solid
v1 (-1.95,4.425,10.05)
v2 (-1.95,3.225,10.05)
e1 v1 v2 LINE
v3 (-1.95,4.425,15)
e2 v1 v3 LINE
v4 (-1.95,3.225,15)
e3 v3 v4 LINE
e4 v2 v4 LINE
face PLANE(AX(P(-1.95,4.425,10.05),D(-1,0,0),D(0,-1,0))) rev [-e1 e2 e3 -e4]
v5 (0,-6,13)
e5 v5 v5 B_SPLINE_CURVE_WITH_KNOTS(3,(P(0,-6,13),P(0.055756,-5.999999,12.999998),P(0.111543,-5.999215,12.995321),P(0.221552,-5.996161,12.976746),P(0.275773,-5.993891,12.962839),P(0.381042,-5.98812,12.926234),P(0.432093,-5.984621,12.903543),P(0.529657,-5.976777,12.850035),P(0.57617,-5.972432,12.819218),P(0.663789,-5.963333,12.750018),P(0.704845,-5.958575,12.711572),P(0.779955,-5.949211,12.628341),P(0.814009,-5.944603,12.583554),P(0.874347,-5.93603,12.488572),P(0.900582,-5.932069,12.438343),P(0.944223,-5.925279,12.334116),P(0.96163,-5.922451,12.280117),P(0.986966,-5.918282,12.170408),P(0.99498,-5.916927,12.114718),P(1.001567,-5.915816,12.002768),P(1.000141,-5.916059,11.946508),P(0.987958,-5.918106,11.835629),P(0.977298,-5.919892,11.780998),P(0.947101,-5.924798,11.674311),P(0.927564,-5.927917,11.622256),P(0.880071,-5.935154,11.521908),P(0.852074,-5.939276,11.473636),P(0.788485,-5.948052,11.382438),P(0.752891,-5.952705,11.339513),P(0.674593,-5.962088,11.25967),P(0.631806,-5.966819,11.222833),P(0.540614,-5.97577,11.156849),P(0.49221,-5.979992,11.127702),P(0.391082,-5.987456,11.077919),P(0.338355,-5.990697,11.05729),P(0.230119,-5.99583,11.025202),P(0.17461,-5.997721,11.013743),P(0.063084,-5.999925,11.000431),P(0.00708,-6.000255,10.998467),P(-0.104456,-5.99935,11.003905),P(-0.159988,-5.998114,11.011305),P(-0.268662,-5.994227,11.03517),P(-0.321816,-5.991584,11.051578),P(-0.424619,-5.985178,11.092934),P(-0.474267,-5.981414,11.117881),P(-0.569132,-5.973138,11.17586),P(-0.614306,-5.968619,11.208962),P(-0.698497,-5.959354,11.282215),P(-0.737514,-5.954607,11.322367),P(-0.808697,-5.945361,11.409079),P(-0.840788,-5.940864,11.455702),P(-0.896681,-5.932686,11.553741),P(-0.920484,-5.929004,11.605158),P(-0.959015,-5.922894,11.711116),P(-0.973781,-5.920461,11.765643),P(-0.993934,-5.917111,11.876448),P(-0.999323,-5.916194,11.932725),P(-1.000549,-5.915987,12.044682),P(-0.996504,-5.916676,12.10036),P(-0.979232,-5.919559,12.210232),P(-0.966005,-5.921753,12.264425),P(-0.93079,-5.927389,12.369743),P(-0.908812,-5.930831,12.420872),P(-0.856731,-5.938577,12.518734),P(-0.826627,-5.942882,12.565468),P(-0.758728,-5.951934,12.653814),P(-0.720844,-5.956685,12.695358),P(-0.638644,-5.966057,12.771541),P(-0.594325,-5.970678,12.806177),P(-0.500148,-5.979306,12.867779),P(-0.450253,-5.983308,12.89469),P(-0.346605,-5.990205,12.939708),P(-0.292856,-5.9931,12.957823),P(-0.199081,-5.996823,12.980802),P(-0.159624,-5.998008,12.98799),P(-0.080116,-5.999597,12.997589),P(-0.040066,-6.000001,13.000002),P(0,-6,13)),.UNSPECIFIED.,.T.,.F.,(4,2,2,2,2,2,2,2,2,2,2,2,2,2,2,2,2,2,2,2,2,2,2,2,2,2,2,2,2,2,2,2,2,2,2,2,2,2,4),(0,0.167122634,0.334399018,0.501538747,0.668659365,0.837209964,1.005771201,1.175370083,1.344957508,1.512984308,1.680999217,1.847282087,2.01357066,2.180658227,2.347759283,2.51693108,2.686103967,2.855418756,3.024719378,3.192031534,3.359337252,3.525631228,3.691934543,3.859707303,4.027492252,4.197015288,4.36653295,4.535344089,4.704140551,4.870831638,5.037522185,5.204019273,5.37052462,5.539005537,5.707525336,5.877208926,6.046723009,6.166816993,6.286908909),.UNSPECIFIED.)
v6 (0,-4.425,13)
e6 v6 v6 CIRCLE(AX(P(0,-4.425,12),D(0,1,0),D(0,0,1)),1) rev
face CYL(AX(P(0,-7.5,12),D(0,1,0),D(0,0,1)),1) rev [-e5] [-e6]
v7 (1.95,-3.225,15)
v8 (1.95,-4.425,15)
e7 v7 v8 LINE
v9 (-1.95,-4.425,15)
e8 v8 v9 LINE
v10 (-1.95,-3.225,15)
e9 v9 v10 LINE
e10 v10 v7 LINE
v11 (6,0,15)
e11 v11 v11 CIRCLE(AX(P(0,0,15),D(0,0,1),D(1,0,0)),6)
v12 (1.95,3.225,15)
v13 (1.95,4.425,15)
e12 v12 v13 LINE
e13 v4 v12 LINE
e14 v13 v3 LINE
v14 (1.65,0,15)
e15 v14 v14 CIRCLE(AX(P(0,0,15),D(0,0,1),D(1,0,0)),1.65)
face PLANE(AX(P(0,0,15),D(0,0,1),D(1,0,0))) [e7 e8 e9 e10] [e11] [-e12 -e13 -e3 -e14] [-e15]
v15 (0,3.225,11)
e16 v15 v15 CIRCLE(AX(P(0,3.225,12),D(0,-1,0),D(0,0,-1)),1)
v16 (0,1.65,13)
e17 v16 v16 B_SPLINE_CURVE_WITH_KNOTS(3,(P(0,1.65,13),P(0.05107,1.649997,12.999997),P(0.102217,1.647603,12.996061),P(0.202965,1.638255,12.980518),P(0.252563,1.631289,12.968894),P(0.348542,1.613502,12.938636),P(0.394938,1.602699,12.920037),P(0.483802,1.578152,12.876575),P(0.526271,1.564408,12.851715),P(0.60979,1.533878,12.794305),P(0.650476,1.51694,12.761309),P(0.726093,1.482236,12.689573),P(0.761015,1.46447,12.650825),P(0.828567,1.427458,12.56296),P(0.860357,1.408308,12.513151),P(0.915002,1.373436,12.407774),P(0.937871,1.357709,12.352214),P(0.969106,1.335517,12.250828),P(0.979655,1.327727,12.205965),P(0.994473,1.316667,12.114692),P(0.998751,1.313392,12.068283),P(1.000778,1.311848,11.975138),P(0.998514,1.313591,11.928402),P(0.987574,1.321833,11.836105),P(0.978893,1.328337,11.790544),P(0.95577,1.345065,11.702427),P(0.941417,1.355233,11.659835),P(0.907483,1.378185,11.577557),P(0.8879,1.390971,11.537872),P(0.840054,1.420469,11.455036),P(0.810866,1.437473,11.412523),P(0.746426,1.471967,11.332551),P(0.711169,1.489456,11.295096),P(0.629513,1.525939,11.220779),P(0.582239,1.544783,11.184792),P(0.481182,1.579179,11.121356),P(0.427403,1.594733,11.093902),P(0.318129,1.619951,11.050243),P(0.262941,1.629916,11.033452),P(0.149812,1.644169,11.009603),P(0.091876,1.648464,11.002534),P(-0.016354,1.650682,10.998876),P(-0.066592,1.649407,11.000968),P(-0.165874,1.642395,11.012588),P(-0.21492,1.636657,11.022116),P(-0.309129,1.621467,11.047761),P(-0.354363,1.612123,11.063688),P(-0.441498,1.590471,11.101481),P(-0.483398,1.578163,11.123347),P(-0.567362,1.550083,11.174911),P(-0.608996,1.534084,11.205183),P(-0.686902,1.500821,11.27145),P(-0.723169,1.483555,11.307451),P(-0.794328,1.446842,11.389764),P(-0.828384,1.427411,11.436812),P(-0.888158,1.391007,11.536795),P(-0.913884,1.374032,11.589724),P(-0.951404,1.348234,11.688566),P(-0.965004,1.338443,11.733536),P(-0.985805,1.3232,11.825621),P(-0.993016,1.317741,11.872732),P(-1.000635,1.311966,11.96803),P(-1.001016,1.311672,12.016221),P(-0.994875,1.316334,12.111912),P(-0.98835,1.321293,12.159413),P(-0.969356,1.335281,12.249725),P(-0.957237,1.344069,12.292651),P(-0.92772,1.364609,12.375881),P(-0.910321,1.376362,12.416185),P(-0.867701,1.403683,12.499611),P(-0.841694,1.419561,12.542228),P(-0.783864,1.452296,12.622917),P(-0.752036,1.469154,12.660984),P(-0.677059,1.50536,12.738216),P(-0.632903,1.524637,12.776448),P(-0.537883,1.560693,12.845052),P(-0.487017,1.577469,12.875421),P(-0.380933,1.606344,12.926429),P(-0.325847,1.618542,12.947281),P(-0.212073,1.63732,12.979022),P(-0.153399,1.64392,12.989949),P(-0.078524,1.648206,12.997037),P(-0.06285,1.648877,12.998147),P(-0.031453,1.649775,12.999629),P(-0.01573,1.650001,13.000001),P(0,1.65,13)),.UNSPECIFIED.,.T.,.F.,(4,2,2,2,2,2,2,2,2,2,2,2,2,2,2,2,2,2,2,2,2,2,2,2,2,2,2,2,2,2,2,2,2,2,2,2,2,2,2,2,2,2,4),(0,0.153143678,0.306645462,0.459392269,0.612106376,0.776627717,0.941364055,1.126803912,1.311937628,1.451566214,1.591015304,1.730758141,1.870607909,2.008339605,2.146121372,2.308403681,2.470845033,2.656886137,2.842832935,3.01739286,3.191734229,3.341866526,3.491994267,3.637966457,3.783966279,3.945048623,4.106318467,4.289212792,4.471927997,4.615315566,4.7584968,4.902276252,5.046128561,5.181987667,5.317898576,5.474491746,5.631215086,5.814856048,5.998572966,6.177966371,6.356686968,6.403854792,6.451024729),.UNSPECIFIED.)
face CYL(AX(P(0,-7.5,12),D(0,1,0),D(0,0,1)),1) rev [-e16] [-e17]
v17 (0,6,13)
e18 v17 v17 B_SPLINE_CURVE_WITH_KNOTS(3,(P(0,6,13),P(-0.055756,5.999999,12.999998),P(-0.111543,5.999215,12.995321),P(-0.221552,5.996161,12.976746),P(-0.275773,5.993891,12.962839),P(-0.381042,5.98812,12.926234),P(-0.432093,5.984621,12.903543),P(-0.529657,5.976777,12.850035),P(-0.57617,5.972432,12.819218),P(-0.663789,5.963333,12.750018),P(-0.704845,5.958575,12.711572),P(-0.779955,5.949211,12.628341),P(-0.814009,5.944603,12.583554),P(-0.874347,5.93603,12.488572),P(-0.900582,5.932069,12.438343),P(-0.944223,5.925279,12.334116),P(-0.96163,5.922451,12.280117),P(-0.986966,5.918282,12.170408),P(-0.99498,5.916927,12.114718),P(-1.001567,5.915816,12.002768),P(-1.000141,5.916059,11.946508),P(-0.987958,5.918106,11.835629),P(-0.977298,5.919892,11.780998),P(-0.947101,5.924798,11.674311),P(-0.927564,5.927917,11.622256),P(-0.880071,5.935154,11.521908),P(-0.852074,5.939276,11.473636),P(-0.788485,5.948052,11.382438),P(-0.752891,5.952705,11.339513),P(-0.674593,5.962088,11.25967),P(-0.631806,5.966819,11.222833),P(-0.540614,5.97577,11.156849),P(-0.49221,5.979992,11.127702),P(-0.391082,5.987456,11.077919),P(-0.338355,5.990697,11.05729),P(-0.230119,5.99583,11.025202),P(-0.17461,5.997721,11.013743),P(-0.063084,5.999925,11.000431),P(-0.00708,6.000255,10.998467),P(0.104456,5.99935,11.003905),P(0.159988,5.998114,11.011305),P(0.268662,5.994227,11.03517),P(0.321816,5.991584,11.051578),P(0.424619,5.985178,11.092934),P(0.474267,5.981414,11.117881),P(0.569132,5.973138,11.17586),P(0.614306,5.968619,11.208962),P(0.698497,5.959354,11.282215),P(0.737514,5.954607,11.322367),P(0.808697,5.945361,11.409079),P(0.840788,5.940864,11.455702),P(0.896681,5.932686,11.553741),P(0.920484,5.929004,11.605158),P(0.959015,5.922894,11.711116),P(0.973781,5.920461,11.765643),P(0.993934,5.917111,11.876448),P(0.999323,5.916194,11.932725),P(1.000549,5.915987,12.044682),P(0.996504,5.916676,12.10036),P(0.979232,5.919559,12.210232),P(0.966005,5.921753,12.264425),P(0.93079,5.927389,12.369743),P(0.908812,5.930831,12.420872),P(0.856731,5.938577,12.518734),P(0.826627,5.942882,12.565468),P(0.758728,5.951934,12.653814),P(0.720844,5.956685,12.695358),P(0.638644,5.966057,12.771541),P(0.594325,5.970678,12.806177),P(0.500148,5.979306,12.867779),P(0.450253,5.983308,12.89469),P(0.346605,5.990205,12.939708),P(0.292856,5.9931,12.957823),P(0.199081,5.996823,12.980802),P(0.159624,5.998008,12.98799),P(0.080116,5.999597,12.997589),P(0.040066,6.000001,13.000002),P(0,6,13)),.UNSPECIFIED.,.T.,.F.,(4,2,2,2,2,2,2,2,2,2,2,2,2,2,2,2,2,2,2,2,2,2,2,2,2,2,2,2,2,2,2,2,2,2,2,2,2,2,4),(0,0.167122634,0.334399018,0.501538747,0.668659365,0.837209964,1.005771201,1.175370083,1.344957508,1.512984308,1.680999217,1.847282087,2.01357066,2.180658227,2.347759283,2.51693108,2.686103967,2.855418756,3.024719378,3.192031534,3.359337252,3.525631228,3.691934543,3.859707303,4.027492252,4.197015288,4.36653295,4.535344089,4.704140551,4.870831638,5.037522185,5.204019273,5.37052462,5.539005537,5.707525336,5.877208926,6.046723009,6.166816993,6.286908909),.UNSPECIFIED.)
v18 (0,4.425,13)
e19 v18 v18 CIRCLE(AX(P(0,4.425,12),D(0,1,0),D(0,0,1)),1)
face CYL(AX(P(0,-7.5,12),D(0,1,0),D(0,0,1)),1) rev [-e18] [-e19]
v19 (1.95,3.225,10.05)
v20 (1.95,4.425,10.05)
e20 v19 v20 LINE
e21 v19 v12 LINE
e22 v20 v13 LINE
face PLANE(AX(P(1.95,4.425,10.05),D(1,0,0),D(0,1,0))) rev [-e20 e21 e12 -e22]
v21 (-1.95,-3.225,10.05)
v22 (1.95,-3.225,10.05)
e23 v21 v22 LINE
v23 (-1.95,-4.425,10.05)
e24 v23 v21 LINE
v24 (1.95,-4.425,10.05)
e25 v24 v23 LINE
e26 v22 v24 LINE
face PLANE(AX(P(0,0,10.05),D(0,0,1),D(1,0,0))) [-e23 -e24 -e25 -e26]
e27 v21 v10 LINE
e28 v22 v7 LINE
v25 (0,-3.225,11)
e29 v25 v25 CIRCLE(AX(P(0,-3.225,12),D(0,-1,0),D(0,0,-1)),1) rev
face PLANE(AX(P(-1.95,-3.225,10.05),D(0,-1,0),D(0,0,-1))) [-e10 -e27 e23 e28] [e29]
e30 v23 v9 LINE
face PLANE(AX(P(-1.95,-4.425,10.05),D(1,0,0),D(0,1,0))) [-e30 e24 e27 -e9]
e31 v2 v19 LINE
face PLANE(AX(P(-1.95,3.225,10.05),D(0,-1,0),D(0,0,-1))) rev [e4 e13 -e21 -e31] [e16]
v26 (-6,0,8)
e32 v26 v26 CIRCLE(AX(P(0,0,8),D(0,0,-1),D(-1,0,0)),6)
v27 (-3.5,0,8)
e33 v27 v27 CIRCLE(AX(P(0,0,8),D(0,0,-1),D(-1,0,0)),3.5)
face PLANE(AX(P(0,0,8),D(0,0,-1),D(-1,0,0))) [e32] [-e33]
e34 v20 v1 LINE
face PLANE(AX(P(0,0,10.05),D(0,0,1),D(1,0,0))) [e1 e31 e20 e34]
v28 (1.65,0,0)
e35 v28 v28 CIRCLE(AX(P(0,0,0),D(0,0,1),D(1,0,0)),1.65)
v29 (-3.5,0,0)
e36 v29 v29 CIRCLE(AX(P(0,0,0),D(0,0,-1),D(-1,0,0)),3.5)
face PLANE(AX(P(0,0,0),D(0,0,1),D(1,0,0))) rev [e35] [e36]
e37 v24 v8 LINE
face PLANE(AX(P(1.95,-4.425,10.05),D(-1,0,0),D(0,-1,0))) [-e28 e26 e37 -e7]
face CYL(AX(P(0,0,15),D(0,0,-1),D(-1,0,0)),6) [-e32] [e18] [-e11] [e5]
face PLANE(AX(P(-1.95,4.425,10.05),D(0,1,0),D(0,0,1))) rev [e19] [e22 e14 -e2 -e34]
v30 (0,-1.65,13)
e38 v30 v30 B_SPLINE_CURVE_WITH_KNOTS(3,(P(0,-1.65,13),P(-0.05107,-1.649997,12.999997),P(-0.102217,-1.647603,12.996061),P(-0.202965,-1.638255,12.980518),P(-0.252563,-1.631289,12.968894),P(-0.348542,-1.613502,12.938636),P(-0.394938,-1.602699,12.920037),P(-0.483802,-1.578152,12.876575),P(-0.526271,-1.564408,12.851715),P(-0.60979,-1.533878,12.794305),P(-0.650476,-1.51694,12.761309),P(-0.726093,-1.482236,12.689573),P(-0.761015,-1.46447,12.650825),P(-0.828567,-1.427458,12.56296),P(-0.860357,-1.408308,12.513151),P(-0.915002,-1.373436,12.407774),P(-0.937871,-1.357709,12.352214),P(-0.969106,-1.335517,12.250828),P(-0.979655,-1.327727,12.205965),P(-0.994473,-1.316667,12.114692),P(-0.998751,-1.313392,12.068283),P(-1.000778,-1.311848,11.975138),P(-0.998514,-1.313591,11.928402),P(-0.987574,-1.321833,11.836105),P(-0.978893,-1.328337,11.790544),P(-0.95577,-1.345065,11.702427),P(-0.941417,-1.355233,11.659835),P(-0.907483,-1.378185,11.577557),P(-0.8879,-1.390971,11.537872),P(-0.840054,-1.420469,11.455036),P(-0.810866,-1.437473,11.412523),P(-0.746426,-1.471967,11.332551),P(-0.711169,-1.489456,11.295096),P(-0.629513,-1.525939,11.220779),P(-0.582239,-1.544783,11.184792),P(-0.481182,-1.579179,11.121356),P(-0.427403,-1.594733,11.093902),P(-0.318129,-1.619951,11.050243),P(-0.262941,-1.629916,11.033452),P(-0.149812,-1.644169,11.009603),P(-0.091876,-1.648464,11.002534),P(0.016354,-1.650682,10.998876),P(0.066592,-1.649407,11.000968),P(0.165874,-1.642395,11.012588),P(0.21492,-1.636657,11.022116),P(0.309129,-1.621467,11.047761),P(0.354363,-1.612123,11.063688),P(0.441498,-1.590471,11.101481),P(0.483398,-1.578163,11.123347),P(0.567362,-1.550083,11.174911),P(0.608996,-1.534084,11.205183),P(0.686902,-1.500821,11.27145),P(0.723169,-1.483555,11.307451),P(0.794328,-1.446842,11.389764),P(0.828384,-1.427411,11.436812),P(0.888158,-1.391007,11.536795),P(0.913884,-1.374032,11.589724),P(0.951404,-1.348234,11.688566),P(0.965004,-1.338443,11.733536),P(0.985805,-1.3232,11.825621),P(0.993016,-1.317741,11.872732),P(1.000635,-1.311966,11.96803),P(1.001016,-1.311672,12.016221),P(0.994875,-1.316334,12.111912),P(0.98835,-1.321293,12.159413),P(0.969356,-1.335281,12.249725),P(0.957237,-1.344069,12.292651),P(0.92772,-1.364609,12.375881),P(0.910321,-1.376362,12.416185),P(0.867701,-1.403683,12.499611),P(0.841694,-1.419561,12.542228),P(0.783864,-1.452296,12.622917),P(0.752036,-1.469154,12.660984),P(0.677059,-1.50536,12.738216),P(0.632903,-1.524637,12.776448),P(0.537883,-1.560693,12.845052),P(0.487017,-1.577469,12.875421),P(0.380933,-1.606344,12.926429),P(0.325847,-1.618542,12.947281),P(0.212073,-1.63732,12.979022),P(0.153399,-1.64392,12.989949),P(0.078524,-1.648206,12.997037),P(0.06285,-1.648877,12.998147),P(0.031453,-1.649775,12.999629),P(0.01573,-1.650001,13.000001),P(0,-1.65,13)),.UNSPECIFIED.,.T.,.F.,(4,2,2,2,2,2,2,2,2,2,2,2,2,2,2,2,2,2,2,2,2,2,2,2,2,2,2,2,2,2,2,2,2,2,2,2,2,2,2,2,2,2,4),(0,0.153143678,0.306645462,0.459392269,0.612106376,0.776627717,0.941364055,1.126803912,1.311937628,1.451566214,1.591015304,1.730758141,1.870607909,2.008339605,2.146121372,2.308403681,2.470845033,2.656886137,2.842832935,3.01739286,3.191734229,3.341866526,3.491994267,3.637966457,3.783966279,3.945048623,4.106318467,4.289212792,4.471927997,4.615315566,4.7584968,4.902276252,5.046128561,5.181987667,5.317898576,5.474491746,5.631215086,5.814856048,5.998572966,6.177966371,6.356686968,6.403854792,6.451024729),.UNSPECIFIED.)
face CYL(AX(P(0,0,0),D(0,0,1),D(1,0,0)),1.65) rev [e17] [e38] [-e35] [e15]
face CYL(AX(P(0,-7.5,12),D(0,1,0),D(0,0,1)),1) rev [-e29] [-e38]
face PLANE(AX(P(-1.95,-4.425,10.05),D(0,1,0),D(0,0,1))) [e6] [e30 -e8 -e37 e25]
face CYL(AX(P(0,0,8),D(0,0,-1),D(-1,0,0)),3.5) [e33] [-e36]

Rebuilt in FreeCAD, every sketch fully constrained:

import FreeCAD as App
import Part
import Sketcher

doc = App.newDocument("Part")
body = doc.addObject("PartDesign::Body", "Body")

sketch1 = body.newObject("Sketcher::SketchObject", "Sketch")
sketch1.AttachmentSupport = (doc.getObject("XY_Plane"), [""])
sketch1.MapMode = "FlatFace"
sketch1.addGeometry(Part.Circle(App.Vector(0, 0, 0), App.Vector(0, 0, 1), 6), False)
sketch1.addConstraint([
    Sketcher.Constraint("Coincident", 0, 3, -1, 1),
    Sketcher.Constraint("Diameter", 0, 12.0),
])
pad1 = body.newObject("PartDesign::Pad", "Pad")
pad1.Profile = sketch1
pad1.Length = 15

sketch2 = body.newObject("Sketcher::SketchObject", "Sketch001")
sketch2.AttachmentSupport = (doc.getObject("XY_Plane"), [""])
sketch2.MapMode = "FlatFace"
sketch2.AttachmentOffset = App.Placement(App.Vector(0, 0, 15), App.Rotation())
sketch2.addGeometry(Part.Circle(App.Vector(0, 0, 0), App.Vector(0, 0, 1), 1.6), False)
sketch2.addConstraint([
    Sketcher.Constraint("Coincident", 0, 3, -1, 1),
    Sketcher.Constraint("Diameter", 0, 3.3),
])
pocket1 = body.newObject("PartDesign::Pocket", "Pocket")
pocket1.Profile = sketch2
pocket1.Type = "ThroughAll"

sketch3 = body.newObject("Sketcher::SketchObject", "Sketch002")
sketch3.AttachmentSupport = (doc.getObject("XY_Plane"), [""])
sketch3.MapMode = "FlatFace"
sketch3.AttachmentOffset = App.Placement(App.Vector(0, 0, 15), App.Rotation())
sketch3.addGeometry([
    Part.LineSegment(App.Vector(-1.9, 4.4, 0), App.Vector(-1.9, 3.2, 0)),
    Part.LineSegment(App.Vector(-1.9, 3.2, 0), App.Vector(1.9, 3.2, 0)),
    Part.LineSegment(App.Vector(1.9, 3.2, 0), App.Vector(1.9, 4.4, 0)),
    Part.LineSegment(App.Vector(1.9, 4.4, 0), App.Vector(-1.9, 4.4, 0)),
], False)
sketch3.addConstraint([
    Sketcher.Constraint("Coincident", 0, 2, 1, 1),
    Sketcher.Constraint("Coincident", 1, 2, 2, 1),
    Sketcher.Constraint("Coincident", 2, 2, 3, 1),
    Sketcher.Constraint("Coincident", 3, 2, 0, 1),
    Sketcher.Constraint("Vertical", 0),
    Sketcher.Constraint("Horizontal", 1),
    Sketcher.Constraint("Vertical", 2),
    Sketcher.Constraint("Horizontal", 3),
    Sketcher.Constraint("DistanceX", 1, 1, 1, 2, 3.9),
    Sketcher.Constraint("DistanceY", 0, 2, 0, 1, 1.2),
    Sketcher.Constraint("DistanceX", 0, 2, -1, 1, 1.95),
    Sketcher.Constraint("DistanceY", -1, 1, 0, 2, 3.225),
])
pocket2 = body.newObject("PartDesign::Pocket", "Pocket001")
pocket2.Profile = sketch3
pocket2.Length = 4.95

sketch4 = body.newObject("Sketcher::SketchObject", "Sketch003")
sketch4.AttachmentSupport = (doc.getObject("XZ_Plane"), [""])
sketch4.MapMode = "FlatFace"
sketch4.addGeometry(Part.Circle(App.Vector(0, 12, 0), App.Vector(0, 0, 1), 1), False)
sketch4.addConstraint([
    Sketcher.Constraint("PointOnObject", 0, 3, -2),
    Sketcher.Constraint("Diameter", 0, 2.0),
    Sketcher.Constraint("DistanceY", -1, 1, 0, 3, 12.0),
])
pocket3 = body.newObject("PartDesign::Pocket", "Pocket002")
pocket3.Profile = sketch4
pocket3.Length = 15
pocket3.Midplane = True
doc.recompute()

mirrored = body.newObject("PartDesign::Mirrored", "Mirrored")
mirrored.Originals = [pocket2]
mirrored.MirrorPlane = (doc.getObject("XZ_Plane"), [""])
body.Tip = mirrored

sketch5 = body.newObject("Sketcher::SketchObject", "Sketch004")
sketch5.AttachmentSupport = (doc.getObject("XY_Plane"), [""])
sketch5.MapMode = "FlatFace"
sketch5.addGeometry([
    Part.Circle(App.Vector(0, 0, 0), App.Vector(0, 0, 1), 6),
    Part.Circle(App.Vector(0, 0, 0), App.Vector(0, 0, 1), 3.5),
], False)
sketch5.addConstraint([
    Sketcher.Constraint("Coincident", 0, 3, -1, 1),
    Sketcher.Constraint("Coincident", 1, 3, -1, 1),
    Sketcher.Constraint("Diameter", 0, 12.0),
    Sketcher.Constraint("Diameter", 1, 7.0),
])
pocket4 = body.newObject("PartDesign::Pocket", "Pocket003")
pocket4.Profile = sketch5
pocket4.Length = 8
pocket4.Reversed = True

doc.recompute()
